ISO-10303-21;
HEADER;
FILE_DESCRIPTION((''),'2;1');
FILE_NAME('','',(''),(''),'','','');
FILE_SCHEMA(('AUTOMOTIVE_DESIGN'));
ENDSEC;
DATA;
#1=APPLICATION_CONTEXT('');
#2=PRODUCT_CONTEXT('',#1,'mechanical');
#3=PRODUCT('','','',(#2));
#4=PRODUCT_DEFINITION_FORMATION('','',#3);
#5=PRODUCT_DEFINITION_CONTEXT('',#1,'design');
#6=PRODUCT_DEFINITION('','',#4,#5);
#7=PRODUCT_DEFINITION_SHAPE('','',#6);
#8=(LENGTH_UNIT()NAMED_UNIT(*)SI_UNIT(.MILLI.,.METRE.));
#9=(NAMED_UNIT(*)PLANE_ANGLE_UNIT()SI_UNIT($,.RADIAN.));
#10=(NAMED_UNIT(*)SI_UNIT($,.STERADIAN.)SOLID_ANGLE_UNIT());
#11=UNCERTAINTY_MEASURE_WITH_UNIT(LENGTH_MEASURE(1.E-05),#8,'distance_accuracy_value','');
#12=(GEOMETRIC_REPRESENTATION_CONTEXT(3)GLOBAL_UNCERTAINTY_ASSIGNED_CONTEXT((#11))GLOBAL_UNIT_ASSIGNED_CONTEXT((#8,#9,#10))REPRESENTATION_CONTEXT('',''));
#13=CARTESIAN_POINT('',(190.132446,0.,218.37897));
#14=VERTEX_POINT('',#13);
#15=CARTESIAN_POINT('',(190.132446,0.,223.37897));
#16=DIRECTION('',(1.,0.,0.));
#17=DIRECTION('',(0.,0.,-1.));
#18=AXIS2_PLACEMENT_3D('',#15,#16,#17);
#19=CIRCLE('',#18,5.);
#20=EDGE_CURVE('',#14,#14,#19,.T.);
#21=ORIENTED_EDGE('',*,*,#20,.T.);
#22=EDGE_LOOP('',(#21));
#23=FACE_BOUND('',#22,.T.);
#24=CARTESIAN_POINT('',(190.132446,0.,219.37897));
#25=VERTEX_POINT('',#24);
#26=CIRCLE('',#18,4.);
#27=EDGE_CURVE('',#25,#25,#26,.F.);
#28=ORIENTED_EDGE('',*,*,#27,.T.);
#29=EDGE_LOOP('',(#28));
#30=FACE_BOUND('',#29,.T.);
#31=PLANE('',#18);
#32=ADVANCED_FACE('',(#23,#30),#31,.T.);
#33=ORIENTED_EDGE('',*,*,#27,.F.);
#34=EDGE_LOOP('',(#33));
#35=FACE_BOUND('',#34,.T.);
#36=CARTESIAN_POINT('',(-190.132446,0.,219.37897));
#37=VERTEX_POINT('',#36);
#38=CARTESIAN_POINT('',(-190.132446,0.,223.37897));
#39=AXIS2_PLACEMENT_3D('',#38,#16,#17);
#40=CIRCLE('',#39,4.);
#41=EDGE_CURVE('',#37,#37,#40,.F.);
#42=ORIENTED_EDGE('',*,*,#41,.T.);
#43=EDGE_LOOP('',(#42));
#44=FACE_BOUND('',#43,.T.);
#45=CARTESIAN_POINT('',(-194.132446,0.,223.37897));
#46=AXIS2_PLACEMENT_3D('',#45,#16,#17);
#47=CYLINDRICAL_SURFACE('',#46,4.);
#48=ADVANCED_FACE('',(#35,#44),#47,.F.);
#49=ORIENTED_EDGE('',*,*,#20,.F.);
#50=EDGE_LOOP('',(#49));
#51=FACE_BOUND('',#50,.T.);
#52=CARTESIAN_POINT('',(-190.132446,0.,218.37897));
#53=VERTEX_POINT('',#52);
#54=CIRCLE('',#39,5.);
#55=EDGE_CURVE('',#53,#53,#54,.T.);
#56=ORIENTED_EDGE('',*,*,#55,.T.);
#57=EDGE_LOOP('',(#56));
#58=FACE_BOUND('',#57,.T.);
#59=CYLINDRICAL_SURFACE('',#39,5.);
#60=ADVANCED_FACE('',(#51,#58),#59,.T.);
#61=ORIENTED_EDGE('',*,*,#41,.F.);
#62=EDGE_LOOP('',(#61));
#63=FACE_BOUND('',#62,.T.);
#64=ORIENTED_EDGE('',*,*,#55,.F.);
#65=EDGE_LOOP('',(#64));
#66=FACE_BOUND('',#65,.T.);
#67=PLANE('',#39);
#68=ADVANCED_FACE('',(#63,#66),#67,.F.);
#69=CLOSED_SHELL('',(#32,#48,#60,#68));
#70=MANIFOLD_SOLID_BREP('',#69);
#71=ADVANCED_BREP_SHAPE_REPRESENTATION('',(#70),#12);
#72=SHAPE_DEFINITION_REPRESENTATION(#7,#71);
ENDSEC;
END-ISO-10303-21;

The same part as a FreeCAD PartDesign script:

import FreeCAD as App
import Part
import Sketcher
from FreeCAD import Vector

doc = App.newDocument("Part")
body = doc.addObject("PartDesign::Body", "Body")

# Sketch on YZ plane
sketch1 = doc.addObject("Sketcher::SketchObject", "Sketch")
body.addObject(sketch1)
sketch1.AttachmentSupport = (doc.YZ_Plane, [""])
sketch1.MapMode = "FlatFace"
sketch1.AttachmentOffset = App.Placement(Vector(0, 0, -190.132446), App.Rotation())
sketch1.addGeometry(Part.Circle(Vector(0, 223.37897, 0), Vector(0, 0, 1), 5), False)
sketch1.addConstraint([
    Sketcher.Constraint("PointOnObject", 0, 3, -2),
    Sketcher.Constraint("Diameter", 0, 10.0),
    Sketcher.Constraint("DistanceY", -1, 1, 0, 3, 223.37897),
])

# Sketch on XY plane
sketch2 = doc.addObject("Sketcher::SketchObject", "Sketch001")
body.addObject(sketch2)
sketch2.AttachmentSupport = (doc.XY_Plane, [""])
sketch2.MapMode = "FlatFace"
sketch2.AttachmentOffset = App.Placement(Vector(0, 0, 223.37897), App.Rotation())
sketch2.addGeometry(Part.LineSegment(Vector(-190.132446, 0, 0), Vector(190.132446, 0, 0)), False)
sketch2.addConstraint([
    Sketcher.Constraint("Horizontal", 0),
    Sketcher.Constraint("Symmetric", 0, 1, 0, 2, -1, 1),
    Sketcher.Constraint("DistanceX", 0, 1, 0, 2, 380.264892),
])
doc.recompute()

additivepipe = doc.addObject("PartDesign::AdditivePipe", "AdditivePipe")
body.addObject(additivepipe)
additivepipe.Profile = sketch1
additivepipe.Spine = (sketch2, ["Edge1"])

# Sketch on YZ plane
sketch3 = doc.addObject("Sketcher::SketchObject", "Sketch002")
body.addObject(sketch3)
sketch3.AttachmentSupport = (doc.YZ_Plane, [""])
sketch3.MapMode = "FlatFace"
sketch3.AttachmentOffset = App.Placement(Vector(0, 0, -190.132446), App.Rotation())
sketch3.addGeometry(Part.Circle(Vector(0, 223.37897, 0), Vector(0, 0, 1), 4), False)
sketch3.addConstraint([
    Sketcher.Constraint("PointOnObject", 0, 3, -2),
    Sketcher.Constraint("Diameter", 0, 8.0),
    Sketcher.Constraint("DistanceY", -1, 1, 0, 3, 223.37897),
])

# Sketch on XY plane
sketch4 = doc.addObject("Sketcher::SketchObject", "Sketch003")
body.addObject(sketch4)
sketch4.AttachmentSupport = (doc.XY_Plane, [""])
sketch4.MapMode = "FlatFace"
sketch4.AttachmentOffset = App.Placement(Vector(0, 0, 223.37897), App.Rotation())
sketch4.addGeometry(Part.LineSegment(Vector(-190.132446, 0, 0), Vector(190.132446, 0, 0)), False)
sketch4.addConstraint([
    Sketcher.Constraint("Horizontal", 0),
    Sketcher.Constraint("Symmetric", 0, 1, 0, 2, -1, 1),
    Sketcher.Constraint("DistanceX", 0, 1, 0, 2, 380.264892),
])
doc.recompute()

subtractivepipe = doc.addObject("PartDesign::SubtractivePipe", "SubtractivePipe")
body.addObject(subtractivepipe)
subtractivepipe.Profile = sketch3
subtractivepipe.Spine = (sketch4, ["Edge1"])

doc.recompute()
